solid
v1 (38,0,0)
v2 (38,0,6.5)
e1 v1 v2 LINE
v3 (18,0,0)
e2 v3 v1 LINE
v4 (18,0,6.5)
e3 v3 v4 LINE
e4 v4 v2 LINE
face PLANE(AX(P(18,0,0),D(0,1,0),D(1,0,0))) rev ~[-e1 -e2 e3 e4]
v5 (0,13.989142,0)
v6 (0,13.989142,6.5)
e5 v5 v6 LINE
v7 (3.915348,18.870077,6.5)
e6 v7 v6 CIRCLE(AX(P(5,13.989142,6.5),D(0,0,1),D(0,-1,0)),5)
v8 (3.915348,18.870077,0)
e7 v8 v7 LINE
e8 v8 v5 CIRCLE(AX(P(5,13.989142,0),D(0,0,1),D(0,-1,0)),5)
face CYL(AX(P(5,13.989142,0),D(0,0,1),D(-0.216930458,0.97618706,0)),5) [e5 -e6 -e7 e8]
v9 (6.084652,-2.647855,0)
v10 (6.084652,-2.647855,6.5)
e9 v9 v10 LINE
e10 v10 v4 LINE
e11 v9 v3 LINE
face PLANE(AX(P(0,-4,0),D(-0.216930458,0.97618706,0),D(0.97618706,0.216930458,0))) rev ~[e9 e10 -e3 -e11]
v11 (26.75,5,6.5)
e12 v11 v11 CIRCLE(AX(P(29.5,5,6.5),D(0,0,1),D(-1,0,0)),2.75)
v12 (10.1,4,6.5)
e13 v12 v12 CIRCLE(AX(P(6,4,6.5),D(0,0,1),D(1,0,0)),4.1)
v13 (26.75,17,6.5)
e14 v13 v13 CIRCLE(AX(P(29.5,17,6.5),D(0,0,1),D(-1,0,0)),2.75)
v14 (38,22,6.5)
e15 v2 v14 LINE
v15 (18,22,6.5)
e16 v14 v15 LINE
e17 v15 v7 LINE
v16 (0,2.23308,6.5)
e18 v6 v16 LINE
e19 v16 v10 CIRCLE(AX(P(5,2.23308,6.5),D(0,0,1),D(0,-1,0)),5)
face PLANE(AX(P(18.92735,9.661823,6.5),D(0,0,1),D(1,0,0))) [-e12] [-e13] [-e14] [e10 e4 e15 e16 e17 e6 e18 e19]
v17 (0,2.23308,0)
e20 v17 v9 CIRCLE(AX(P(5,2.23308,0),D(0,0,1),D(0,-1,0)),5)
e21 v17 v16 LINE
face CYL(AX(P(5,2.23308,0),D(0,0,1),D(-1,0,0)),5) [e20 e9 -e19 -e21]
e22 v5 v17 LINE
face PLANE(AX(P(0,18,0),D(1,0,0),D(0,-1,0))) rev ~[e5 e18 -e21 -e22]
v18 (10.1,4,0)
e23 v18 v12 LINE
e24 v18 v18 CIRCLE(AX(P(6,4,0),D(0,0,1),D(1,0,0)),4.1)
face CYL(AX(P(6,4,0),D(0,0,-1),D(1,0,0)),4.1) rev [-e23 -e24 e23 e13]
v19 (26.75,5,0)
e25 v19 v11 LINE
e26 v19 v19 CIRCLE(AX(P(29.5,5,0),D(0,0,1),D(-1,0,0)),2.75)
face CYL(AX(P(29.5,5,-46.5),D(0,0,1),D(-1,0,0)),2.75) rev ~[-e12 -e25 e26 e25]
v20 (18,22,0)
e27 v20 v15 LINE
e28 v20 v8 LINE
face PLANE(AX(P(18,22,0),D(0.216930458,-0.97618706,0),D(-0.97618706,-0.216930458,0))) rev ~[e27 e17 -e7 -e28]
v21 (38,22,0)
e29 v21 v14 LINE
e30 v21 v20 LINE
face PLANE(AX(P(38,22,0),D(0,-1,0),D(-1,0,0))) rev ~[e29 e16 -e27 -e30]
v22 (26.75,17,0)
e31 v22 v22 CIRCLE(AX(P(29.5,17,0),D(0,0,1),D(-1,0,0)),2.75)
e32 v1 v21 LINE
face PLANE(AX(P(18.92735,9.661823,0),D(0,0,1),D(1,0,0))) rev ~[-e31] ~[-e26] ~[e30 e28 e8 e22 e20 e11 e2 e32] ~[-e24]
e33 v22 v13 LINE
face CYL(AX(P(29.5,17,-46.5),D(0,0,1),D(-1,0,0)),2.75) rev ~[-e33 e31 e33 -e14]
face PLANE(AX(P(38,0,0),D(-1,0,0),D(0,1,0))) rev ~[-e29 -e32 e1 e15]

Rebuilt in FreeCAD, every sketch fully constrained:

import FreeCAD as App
import Part
import Sketcher
from FreeCAD import Vector
Q = App.Units.Quantity


def edges_at(feature, points):
    """Names of the edges that pass closest to the given points."""
    edges = feature.Shape.Edges
    near = lambda p: min(range(len(edges)), key=lambda i: edges[i].distToShape(Part.Vertex(*p))[0])
    return sorted({f"Edge{near(p) + 1}" for p in points})

doc = App.newDocument("Part")
body = doc.addObject("PartDesign::Body", "Body")

# Sketch on XY plane
sketch1 = body.newObject("Sketcher::SketchObject", "Sketch")
sketch1.AttachmentSupport = (doc.getObject("XY_Plane"), [""])
sketch1.MapMode = "FlatFace"
sketch1.addGeometry(Part.LineSegment(Vector(18, 22, 0), Vector(0, 18, 0)), False)
sketch1.addGeometry(Part.LineSegment(Vector(0, 18, 0), Vector(0, -4, 0)), False)
sketch1.addGeometry(Part.LineSegment(Vector(0, -4, 0), Vector(18, 0, 0)), False)
sketch1.addGeometry(Part.LineSegment(Vector(18, 0, 0), Vector(38, 0, 0)), False)
sketch1.addGeometry(Part.LineSegment(Vector(38, 0, 0), Vector(38, 22, 0)), False)
sketch1.addGeometry(Part.LineSegment(Vector(38, 22, 0), Vector(18, 22, 0)), False)
sketch1.addGeometry(Part.Circle(Vector(6, 4, 0), Vector(0, 0, 1), 4.1), False)
sketch1.addConstraint(Sketcher.Constraint("Coincident", 0, 2, 1, 1))
sketch1.addConstraint(Sketcher.Constraint("Coincident", 1, 2, 2, 1))
sketch1.addConstraint(Sketcher.Constraint("Coincident", 2, 2, 3, 1))
sketch1.addConstraint(Sketcher.Constraint("Coincident", 3, 2, 4, 1))
sketch1.addConstraint(Sketcher.Constraint("Coincident", 4, 2, 5, 1))
sketch1.addConstraint(Sketcher.Constraint("Coincident", 5, 2, 0, 1))
sketch1.addConstraint(Sketcher.Constraint("Vertical", 1))
sketch1.addConstraint(Sketcher.Constraint("Horizontal", 3))
sketch1.addConstraint(Sketcher.Constraint("Vertical", 4))
sketch1.addConstraint(Sketcher.Constraint("Horizontal", 5))
sketch1.addConstraint(Sketcher.Constraint("PointOnObject", 0, 2, -2))
sketch1.addConstraint(Sketcher.Constraint("PointOnObject", 2, 2, -1))
sketch1.addConstraint(Sketcher.Constraint("Parallel", 0, 2))
sketch1.addConstraint(Sketcher.Constraint("Vertical", 2, 2, 5, 2))
sketch1.addConstraint(Sketcher.Constraint("Diameter", 6, Q("8.2 mm")))
sketch1.addConstraint(Sketcher.Constraint("DistanceX", 3, 1, 3, 2, Q("20 mm")))
sketch1.addConstraint(Sketcher.Constraint("DistanceY", 1, 2, 1, 1, Q("22 mm")))
sketch1.addConstraint(Sketcher.Constraint("DistanceX", -1, 1, 6, 3, Q("6 mm")))
sketch1.addConstraint(Sketcher.Constraint("DistanceY", -1, 1, 6, 3, Q("4 mm")))
sketch1.addConstraint(Sketcher.Constraint("DistanceY", -1, 1, 0, 2, Q("18 mm")))
sketch1.addConstraint(Sketcher.Constraint("DistanceX", -1, 1, 2, 2, Q("18 mm")))
pad1 = body.newObject("PartDesign::Pad", "Pad")
pad1.Profile = sketch1
pad1.Length = 6.5

# Sketch on XY plane
sketch2 = body.newObject("Sketcher::SketchObject", "Sketch001")
sketch2.AttachmentSupport = (doc.getObject("XY_Plane"), [""])
sketch2.MapMode = "FlatFace"
sketch2.addGeometry(Part.Circle(Vector(29.5, 17, 0), Vector(0, 0, 1), 2.8), False)
sketch2.addGeometry(Part.Circle(Vector(29.5, 5, 0), Vector(0, 0, 1), 2.8), False)
sketch2.addConstraint(Sketcher.Constraint("Equal", 0, 1))
sketch2.addConstraint(Sketcher.Constraint("Vertical", 0, 3, 1, 3))
sketch2.addConstraint(Sketcher.Constraint("Diameter", 0, Q("5.5 mm")))
sketch2.addConstraint(Sketcher.Constraint("DistanceY", -1, 1, 0, 3, Q("17 mm")))
sketch2.addConstraint(Sketcher.Constraint("DistanceY", -1, 1, 1, 3, Q("5 mm")))
sketch2.addConstraint(Sketcher.Constraint("DistanceX", -1, 1, 0, 3, Q("29.5 mm")))
doc.recompute()
hole = body.newObject("PartDesign::Hole", "Hole")
hole.Profile = sketch2
hole.ThreadType = "None"
hole.Diameter = 5.5
hole.DepthType = "ThroughAll"
hole.Reversed = True
doc.recompute()

fillet = body.newObject("PartDesign::Fillet", "Fillet")
fillet.Base = (hole, edges_at(hole, [(0, 18, 3.25), (0, -4, 3.25)]))
fillet.Radius = 5

doc.recompute()
